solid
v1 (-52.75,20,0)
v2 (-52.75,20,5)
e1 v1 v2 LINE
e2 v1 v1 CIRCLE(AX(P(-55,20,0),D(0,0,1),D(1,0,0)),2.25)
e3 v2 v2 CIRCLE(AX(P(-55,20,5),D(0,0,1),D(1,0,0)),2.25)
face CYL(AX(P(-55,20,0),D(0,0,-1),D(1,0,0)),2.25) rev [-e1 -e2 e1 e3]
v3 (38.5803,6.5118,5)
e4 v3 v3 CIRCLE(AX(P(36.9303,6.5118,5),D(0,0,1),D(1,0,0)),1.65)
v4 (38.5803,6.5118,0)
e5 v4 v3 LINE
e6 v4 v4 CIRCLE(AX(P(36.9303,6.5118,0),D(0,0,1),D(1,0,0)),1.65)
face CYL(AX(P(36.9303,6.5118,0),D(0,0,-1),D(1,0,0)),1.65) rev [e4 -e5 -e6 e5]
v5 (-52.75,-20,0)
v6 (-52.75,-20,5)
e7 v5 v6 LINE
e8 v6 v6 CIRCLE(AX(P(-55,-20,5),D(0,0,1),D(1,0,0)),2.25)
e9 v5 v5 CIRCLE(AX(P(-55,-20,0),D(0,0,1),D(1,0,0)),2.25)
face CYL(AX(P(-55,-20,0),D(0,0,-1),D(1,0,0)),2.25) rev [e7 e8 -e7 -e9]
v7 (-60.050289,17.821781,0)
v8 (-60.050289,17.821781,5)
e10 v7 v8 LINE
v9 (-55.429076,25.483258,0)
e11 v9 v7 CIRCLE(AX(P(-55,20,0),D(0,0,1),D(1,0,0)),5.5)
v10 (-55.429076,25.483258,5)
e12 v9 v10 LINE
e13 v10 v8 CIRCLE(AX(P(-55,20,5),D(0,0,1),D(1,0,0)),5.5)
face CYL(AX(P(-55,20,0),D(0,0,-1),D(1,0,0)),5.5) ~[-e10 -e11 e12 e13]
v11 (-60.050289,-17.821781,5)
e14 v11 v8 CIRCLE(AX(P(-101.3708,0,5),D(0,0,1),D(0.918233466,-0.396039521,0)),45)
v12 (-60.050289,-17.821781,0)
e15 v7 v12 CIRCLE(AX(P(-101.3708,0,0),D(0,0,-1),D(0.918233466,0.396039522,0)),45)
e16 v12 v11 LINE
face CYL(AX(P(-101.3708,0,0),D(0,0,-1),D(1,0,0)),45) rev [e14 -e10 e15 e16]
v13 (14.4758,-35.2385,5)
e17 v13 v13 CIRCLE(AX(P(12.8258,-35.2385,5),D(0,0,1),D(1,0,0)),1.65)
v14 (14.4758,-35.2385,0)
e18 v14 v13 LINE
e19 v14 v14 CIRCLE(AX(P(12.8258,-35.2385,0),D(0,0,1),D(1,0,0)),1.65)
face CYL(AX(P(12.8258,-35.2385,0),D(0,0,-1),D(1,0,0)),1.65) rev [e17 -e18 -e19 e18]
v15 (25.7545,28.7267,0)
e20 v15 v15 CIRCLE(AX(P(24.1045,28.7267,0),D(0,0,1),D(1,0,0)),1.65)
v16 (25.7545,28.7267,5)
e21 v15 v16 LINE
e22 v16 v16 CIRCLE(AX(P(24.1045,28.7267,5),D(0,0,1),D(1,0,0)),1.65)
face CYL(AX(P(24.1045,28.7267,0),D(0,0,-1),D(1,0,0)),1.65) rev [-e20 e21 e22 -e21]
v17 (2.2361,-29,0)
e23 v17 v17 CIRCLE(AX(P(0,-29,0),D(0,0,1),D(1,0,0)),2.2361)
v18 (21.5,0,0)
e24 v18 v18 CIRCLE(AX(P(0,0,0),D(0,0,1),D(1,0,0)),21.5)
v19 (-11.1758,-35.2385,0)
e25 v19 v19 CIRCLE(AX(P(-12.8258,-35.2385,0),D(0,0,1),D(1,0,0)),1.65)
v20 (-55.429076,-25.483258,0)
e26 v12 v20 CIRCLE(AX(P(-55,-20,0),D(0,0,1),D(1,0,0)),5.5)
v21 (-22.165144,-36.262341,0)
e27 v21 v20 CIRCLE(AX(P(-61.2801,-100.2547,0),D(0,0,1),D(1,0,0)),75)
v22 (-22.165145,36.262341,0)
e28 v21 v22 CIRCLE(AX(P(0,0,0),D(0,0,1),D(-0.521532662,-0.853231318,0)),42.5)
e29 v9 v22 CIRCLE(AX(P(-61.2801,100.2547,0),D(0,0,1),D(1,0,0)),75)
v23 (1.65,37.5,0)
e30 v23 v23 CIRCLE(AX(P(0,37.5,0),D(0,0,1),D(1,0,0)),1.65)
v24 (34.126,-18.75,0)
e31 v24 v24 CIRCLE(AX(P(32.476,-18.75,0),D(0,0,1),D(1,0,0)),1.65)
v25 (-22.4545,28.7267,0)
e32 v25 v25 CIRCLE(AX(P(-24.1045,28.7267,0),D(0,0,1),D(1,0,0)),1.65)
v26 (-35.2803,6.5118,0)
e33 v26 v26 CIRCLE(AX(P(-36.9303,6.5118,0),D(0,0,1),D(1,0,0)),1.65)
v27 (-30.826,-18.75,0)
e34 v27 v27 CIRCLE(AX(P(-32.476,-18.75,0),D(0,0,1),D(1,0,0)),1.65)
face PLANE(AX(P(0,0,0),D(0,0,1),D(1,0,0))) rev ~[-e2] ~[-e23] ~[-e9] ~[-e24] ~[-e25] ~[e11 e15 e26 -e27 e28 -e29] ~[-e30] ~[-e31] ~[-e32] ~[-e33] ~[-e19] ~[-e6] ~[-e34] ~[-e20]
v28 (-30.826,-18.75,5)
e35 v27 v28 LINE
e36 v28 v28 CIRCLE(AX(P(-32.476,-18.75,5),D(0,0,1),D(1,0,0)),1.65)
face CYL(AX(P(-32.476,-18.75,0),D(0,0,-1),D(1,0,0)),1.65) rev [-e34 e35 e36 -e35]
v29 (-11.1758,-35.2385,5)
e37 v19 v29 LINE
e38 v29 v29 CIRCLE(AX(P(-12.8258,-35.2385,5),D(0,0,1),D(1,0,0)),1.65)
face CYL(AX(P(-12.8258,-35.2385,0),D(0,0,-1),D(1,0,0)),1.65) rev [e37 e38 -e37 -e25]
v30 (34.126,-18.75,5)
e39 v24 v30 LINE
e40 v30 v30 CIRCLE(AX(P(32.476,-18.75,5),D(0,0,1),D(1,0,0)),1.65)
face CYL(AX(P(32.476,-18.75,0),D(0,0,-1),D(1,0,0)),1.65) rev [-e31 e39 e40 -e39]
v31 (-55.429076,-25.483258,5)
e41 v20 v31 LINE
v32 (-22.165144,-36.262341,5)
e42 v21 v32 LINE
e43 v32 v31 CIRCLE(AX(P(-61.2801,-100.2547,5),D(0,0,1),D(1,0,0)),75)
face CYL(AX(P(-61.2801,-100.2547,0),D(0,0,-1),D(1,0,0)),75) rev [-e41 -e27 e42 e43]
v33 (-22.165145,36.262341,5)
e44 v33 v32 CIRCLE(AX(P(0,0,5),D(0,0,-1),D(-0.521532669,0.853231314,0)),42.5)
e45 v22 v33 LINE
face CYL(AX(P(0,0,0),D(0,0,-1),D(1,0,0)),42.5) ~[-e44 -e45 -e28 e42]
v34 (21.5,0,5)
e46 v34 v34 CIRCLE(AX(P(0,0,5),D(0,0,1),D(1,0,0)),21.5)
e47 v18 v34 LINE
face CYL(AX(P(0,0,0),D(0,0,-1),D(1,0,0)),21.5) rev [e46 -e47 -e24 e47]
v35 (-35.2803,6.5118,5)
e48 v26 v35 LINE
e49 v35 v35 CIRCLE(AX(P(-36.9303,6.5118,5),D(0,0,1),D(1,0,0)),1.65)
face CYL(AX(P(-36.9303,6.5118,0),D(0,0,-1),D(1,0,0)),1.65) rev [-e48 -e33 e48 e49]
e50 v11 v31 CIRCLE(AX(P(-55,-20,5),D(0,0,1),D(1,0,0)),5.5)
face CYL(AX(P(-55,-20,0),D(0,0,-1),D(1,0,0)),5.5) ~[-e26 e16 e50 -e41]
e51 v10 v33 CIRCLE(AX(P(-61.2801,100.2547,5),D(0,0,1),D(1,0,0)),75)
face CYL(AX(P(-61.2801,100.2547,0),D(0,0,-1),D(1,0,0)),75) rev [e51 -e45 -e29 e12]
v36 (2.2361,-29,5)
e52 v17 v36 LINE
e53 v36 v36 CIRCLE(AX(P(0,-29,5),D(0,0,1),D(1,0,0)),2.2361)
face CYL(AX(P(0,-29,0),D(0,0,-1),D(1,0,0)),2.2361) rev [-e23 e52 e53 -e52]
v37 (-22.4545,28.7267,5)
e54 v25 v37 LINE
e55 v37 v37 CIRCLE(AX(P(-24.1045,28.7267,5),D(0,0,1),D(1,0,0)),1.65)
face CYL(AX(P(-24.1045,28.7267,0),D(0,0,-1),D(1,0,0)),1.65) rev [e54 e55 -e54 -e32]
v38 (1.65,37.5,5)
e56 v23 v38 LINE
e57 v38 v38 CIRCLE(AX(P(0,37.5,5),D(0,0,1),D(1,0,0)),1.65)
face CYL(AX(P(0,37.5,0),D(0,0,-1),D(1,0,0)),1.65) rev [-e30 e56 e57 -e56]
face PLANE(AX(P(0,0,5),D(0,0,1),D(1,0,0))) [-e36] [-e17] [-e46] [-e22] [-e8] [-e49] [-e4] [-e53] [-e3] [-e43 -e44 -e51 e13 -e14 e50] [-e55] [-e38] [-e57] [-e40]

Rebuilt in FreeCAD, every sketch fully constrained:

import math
import FreeCAD as App
import Part
import Sketcher
Q = App.Units.Quantity

doc = App.newDocument("Part")
params = doc.addObject("Spreadsheet::Sheet", "Params")
for row, (alias, value) in enumerate([
    ("sketch1_diameter", "85 mm"),
    ("sketch1_diameter2", "43 mm"),
    ("sketch1_diameter3", "3.3 mm"),
    ("pad1_length", "5 mm"),
    ("sketch2_radius", "45 mm"),
    ("sketch2_radius2", "75 mm"),
    ("sketch2_diameter", "4.5 mm"),
    ("sketch2_radius3", "5.5 mm"),
    ("sketch2_radius4", "42.5 mm"),
    ("pad2_length", "5 mm"),
], start=1):
    params.set(f"A{row}", alias)
    params.set(f"B{row}", "=" + value)
    params.setAlias(f"B{row}", alias)

body = doc.addObject("PartDesign::Body", "Body")

# Sketch on XY plane
sketch1 = body.newObject("Sketcher::SketchObject", "Sketch")
sketch1.AttachmentSupport = (doc.getObject("XY_Plane"), [""])
sketch1.MapMode = "FlatFace"
sketch1.addGeometry([
    Part.Circle(App.Vector(0, 0, 0), App.Vector(0, 0, 1), 42.5),  # 0
    Part.Circle(App.Vector(-12.8, -35.2, 0), App.Vector(0, 0, 1), 1.6),  # 1
    Part.Circle(App.Vector(-32.5, -18.8, 0), App.Vector(0, 0, 1), 1.6),  # 2
    Part.Circle(App.Vector(12.8, -35.2, 0), App.Vector(0, 0, 1), 1.6),  # 3
    Part.Circle(App.Vector(0, -29, 0), App.Vector(0, 0, 1), 2.2),  # 4
    Part.Circle(App.Vector(32.5, -18.8, 0), App.Vector(0, 0, 1), 1.6),  # 5
    Part.Circle(App.Vector(-36.9, 6.5, 0), App.Vector(0, 0, 1), 1.6),  # 6
    Part.Circle(App.Vector(-24.1, 28.7, 0), App.Vector(0, 0, 1), 1.6),  # 7
    Part.Circle(App.Vector(0, 0, 0), App.Vector(0, 0, 1), 21.5),  # 8
    Part.Circle(App.Vector(36.9, 6.5, 0), App.Vector(0, 0, 1), 1.6),  # 9
    Part.Circle(App.Vector(0, 37.5, 0), App.Vector(0, 0, 1), 1.6),  # 10
    Part.Circle(App.Vector(24.1, 28.7, 0), App.Vector(0, 0, 1), 1.6),  # 11
], False)
sketch1.addConstraint([
    Sketcher.Constraint("Coincident", 0, 3, -1, 1),
    Sketcher.Constraint("Coincident", 8, 3, -1, 1),
    Sketcher.Constraint("Equal", 1, 2),
    Sketcher.Constraint("Equal", 2, 3),
    Sketcher.Constraint("Equal", 3, 5),
    Sketcher.Constraint("Equal", 5, 6),
    Sketcher.Constraint("Equal", 6, 7),
    Sketcher.Constraint("Equal", 7, 9),
    Sketcher.Constraint("Equal", 9, 10),
    Sketcher.Constraint("Equal", 10, 11),
    Sketcher.Constraint("Symmetric", 1, 3, 3, 3, -2),
    Sketcher.Constraint("Symmetric", 2, 3, 5, 3, -2),
    Sketcher.Constraint("Symmetric", 6, 3, 9, 3, -2),
    Sketcher.Constraint("Symmetric", 7, 3, 11, 3, -2),
    Sketcher.Constraint("PointOnObject", 4, 3, -2),
    Sketcher.Constraint("PointOnObject", 10, 3, -2),
    Sketcher.Constraint("Diameter", 0, Q("85 mm")),
    Sketcher.Constraint("Diameter", 8, Q("43 mm")),
    Sketcher.Constraint("Diameter", 1, Q("3.3 mm")),
    Sketcher.Constraint("DistanceY", 4, 3, -1, 1, Q("29 mm")),
    Sketcher.Constraint("Diameter", 4, Q("4.4722 mm")),
    Sketcher.Constraint("DistanceY", -1, 1, 10, 3, Q("37.5 mm")),
    Sketcher.Constraint("DistanceY", 2, 3, -1, 1, Q("18.75 mm")),
    Sketcher.Constraint("DistanceX", 2, 3, -1, 1, Q("32.476 mm")),
    Sketcher.Constraint("DistanceX", 6, 3, 3, 3, Q("49.756 mm")),
    Sketcher.Constraint("DistanceY", 6, 3, 7, 3, Q("22.215 mm")),
    Sketcher.Constraint("DistanceX", 7, 3, 11, 3, Q("48.209 mm")),
    Sketcher.Constraint("DistanceX", 1, 3, -1, 1, Q("12.8258 mm")),
    Sketcher.Constraint("DistanceY", 1, 3, -1, 1, Q("35.2385 mm")),
    Sketcher.Constraint("DistanceY", -1, 1, 6, 3, Q("6.5118 mm")),
])
sketch1.setExpression("Constraints[16]", "Params.sketch1_diameter")
sketch1.setExpression("Constraints[17]", "Params.sketch1_diameter2")
sketch1.setExpression("Constraints[18]", "Params.sketch1_diameter3")
pad1 = body.newObject("PartDesign::Pad", "Pad")
pad1.Profile = sketch1
pad1.setExpression("Length", "Params.pad1_length")

# Sketch on XY plane
sketch2 = body.newObject("Sketcher::SketchObject", "Sketch001")
sketch2.AttachmentSupport = (doc.getObject("XY_Plane"), [""])
sketch2.MapMode = "FlatFace"
sketch2.addGeometry([
    Part.ArcOfCircle(Part.Circle(App.Vector(-55, 20, 0), App.Vector(0, 0, 1), 5.5), math.radians(94), math.radians(203)),  # 0
    Part.ArcOfCircle(Part.Circle(App.Vector(-101.4, 0, 0), App.Vector(0, 0, 1), 45), math.radians(-23), math.radians(23)),  # 1
    Part.ArcOfCircle(Part.Circle(App.Vector(-55, -20, 0), App.Vector(0, 0, 1), 5.5), math.radians(157), math.radians(266)),  # 2
    Part.ArcOfCircle(Part.Circle(App.Vector(-61.3, -100.3, 0), App.Vector(0, 0, 1), 75), math.radians(59), math.radians(86)),  # 3
    Part.ArcOfCircle(Part.Circle(App.Vector(0, 0, 0), App.Vector(0, 0, 1), 42.5), math.radians(121), math.radians(239)),  # 4
    Part.ArcOfCircle(Part.Circle(App.Vector(-61.3, 100.3, 0), App.Vector(0, 0, 1), 75), math.radians(-86), math.radians(-59)),  # 5
    Part.Circle(App.Vector(-55, 20, 0), App.Vector(0, 0, 1), 2.2),  # 6
    Part.Circle(App.Vector(-55, -20, 0), App.Vector(0, 0, 1), 2.2),  # 7
], False)
sketch2.addConstraint([
    Sketcher.Constraint("Tangent", 0, 2, 1, 2),
    Sketcher.Constraint("Tangent", 1, 1, 2, 1),
    Sketcher.Constraint("Tangent", 2, 2, 3, 2),
    Sketcher.Constraint("Tangent", 3, 1, 4, 2),
    Sketcher.Constraint("Tangent", 4, 1, 5, 2),
    Sketcher.Constraint("Tangent", 5, 1, 0, 1),
    Sketcher.Constraint("Coincident", 4, 3, -1, 1),
    Sketcher.Constraint("Coincident", 6, 3, 0, 3),
    Sketcher.Constraint("Coincident", 7, 3, 2, 3),
    Sketcher.Constraint("Equal", 0, 2),
    Sketcher.Constraint("Equal", 3, 5),
    Sketcher.Constraint("Equal", 6, 7),
    Sketcher.Constraint("Symmetric", 0, 3, 2, 3, -1),
    Sketcher.Constraint("Radius", 1, Q("45 mm")),
    Sketcher.Constraint("Radius", 3, Q("75 mm")),
    Sketcher.Constraint("Diameter", 6, Q("4.5 mm")),
    Sketcher.Constraint("Radius", 0, Q("5.5 mm")),
    Sketcher.Constraint("Radius", 4, Q("42.5 mm")),
    Sketcher.Constraint("DistanceX", 0, 3, -1, 1, Q("55 mm")),
    Sketcher.Constraint("DistanceY", -1, 1, 0, 3, Q("20 mm")),
])
sketch2.setExpression("Constraints[13]", "Params.sketch2_radius")
sketch2.setExpression("Constraints[14]", "Params.sketch2_radius2")
sketch2.setExpression("Constraints[15]", "Params.sketch2_diameter")
sketch2.setExpression("Constraints[16]", "Params.sketch2_radius3")
sketch2.setExpression("Constraints[17]", "Params.sketch2_radius4")
pad2 = body.newObject("PartDesign::Pad", "Pad001")
pad2.Profile = sketch2
pad2.setExpression("Length", "Params.pad2_length")

doc.recompute()
